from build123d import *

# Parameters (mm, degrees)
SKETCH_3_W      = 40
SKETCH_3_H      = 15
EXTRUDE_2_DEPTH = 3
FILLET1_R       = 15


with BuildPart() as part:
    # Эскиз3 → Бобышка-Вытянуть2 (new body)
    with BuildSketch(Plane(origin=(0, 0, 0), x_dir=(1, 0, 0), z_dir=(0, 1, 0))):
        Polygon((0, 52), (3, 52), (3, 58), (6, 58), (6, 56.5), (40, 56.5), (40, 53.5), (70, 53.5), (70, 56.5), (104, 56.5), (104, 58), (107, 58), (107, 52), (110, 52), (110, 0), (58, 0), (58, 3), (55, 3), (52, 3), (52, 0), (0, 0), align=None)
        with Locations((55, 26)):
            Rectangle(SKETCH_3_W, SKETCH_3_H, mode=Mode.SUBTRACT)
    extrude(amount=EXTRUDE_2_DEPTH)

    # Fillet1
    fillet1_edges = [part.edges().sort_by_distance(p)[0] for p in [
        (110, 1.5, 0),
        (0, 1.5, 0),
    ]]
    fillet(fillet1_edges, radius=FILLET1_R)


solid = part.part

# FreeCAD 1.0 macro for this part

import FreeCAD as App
import Part
import Sketcher

V = App.Vector


def edges_at(feature, points):
    """Names of the edges that pass closest to the given points."""
    edges = feature.Shape.Edges
    near = lambda p: min(range(len(edges)), key=lambda i: edges[i].distToShape(Part.Vertex(*p))[0])
    return sorted({f"Edge{near(p) + 1}" for p in points})

doc = App.newDocument("Part")
body = doc.addObject("PartDesign::Body", "Body")

# Sketch on XZ plane
sketch1 = doc.addObject("Sketcher::SketchObject", "Sketch")
body.addObject(sketch1)
sketch1.AttachmentSupport = (doc.XZ_Plane, [""])
sketch1.MapMode = "FlatFace"
sketch1.addGeometry(Part.LineSegment(V(3, -52, 0), V(0, -52, 0)), False)
sketch1.addGeometry(Part.LineSegment(V(0, -52, 0), V(0, 0, 0)), False)
sketch1.addGeometry(Part.LineSegment(V(0, 0, 0), V(52, 0, 0)), False)
sketch1.addGeometry(Part.LineSegment(V(52, 0, 0), V(52, -3, 0)), False)
sketch1.addGeometry(Part.LineSegment(V(52, -3, 0), V(58, -3, 0)), False)
sketch1.addGeometry(Part.LineSegment(V(58, -3, 0), V(58, 0, 0)), False)
sketch1.addGeometry(Part.LineSegment(V(58, 0, 0), V(110, 0, 0)), False)
sketch1.addGeometry(Part.LineSegment(V(110, 0, 0), V(110, -52, 0)), False)
sketch1.addGeometry(Part.LineSegment(V(110, -52, 0), V(107, -52, 0)), False)
sketch1.addGeometry(Part.LineSegment(V(107, -52, 0), V(107, -58, 0)), False)
sketch1.addGeometry(Part.LineSegment(V(107, -58, 0), V(104, -58, 0)), False)
sketch1.addGeometry(Part.LineSegment(V(104, -58, 0), V(104, -56.5, 0)), False)
sketch1.addGeometry(Part.LineSegment(V(104, -56.5, 0), V(70, -56.5, 0)), False)
sketch1.addGeometry(Part.LineSegment(V(70, -56.5, 0), V(70, -53.5, 0)), False)
sketch1.addGeometry(Part.LineSegment(V(70, -53.5, 0), V(40, -53.5, 0)), False)
sketch1.addGeometry(Part.LineSegment(V(40, -53.5, 0), V(40, -56.5, 0)), False)
sketch1.addGeometry(Part.LineSegment(V(40, -56.5, 0), V(6, -56.5, 0)), False)
sketch1.addGeometry(Part.LineSegment(V(6, -56.5, 0), V(6, -58, 0)), False)
sketch1.addGeometry(Part.LineSegment(V(6, -58, 0), V(3, -58, 0)), False)
sketch1.addGeometry(Part.LineSegment(V(3, -58, 0), V(3, -52, 0)), False)
sketch1.addGeometry(Part.LineSegment(V(35, -18.5, 0), V(35, -33.5, 0)), False)
sketch1.addGeometry(Part.LineSegment(V(35, -33.5, 0), V(75, -33.5, 0)), False)
sketch1.addGeometry(Part.LineSegment(V(75, -33.5, 0), V(75, -18.5, 0)), False)
sketch1.addGeometry(Part.LineSegment(V(75, -18.5, 0), V(35, -18.5, 0)), False)
sketch1.addConstraint(Sketcher.Constraint("Coincident", 0, 2, 1, 1))
sketch1.addConstraint(Sketcher.Constraint("Coincident", 1, 2, 2, 1))
sketch1.addConstraint(Sketcher.Constraint("Coincident", 2, 2, 3, 1))
sketch1.addConstraint(Sketcher.Constraint("Coincident", 3, 2, 4, 1))
sketch1.addConstraint(Sketcher.Constraint("Coincident", 4, 2, 5, 1))
sketch1.addConstraint(Sketcher.Constraint("Coincident", 5, 2, 6, 1))
sketch1.addConstraint(Sketcher.Constraint("Coincident", 6, 2, 7, 1))
sketch1.addConstraint(Sketcher.Constraint("Coincident", 7, 2, 8, 1))
sketch1.addConstraint(Sketcher.Constraint("Coincident", 8, 2, 9, 1))
sketch1.addConstraint(Sketcher.Constraint("Coincident", 9, 2, 10, 1))
sketch1.addConstraint(Sketcher.Constraint("Coincident", 10, 2, 11, 1))
sketch1.addConstraint(Sketcher.Constraint("Coincident", 11, 2, 12, 1))
sketch1.addConstraint(Sketcher.Constraint("Coincident", 12, 2, 13, 1))
sketch1.addConstraint(Sketcher.Constraint("Coincident", 13, 2, 14, 1))
sketch1.addConstraint(Sketcher.Constraint("Coincident", 14, 2, 15, 1))
sketch1.addConstraint(Sketcher.Constraint("Coincident", 15, 2, 16, 1))
sketch1.addConstraint(Sketcher.Constraint("Coincident", 16, 2, 17, 1))
sketch1.addConstraint(Sketcher.Constraint("Coincident", 17, 2, 18, 1))
sketch1.addConstraint(Sketcher.Constraint("Coincident", 18, 2, 19, 1))
sketch1.addConstraint(Sketcher.Constraint("Coincident", 19, 2, 0, 1))
sketch1.addConstraint(Sketcher.Constraint("Coincident", 20, 2, 21, 1))
sketch1.addConstraint(Sketcher.Constraint("Coincident", 21, 2, 22, 1))
sketch1.addConstraint(Sketcher.Constraint("Coincident", 22, 2, 23, 1))
sketch1.addConstraint(Sketcher.Constraint("Coincident", 23, 2, 20, 1))
sketch1.addConstraint(Sketcher.Constraint("Horizontal", 0))
sketch1.addConstraint(Sketcher.Constraint("Vertical", 1))
sketch1.addConstraint(Sketcher.Constraint("Horizontal", 2))
sketch1.addConstraint(Sketcher.Constraint("Vertical", 3))
sketch1.addConstraint(Sketcher.Constraint("Horizontal", 4))
sketch1.addConstraint(Sketcher.Constraint("Vertical", 5))
sketch1.addConstraint(Sketcher.Constraint("Horizontal", 6))
sketch1.addConstraint(Sketcher.Constraint("Vertical", 7))
sketch1.addConstraint(Sketcher.Constraint("Horizontal", 8))
sketch1.addConstraint(Sketcher.Constraint("Vertical", 9))
sketch1.addConstraint(Sketcher.Constraint("Horizontal", 10))
sketch1.addConstraint(Sketcher.Constraint("Vertical", 11))
sketch1.addConstraint(Sketcher.Constraint("Horizontal", 12))
sketch1.addConstraint(Sketcher.Constraint("Vertical", 13))
sketch1.addConstraint(Sketcher.Constraint("Horizontal", 14))
sketch1.addConstraint(Sketcher.Constraint("Vertical", 15))
sketch1.addConstraint(Sketcher.Constraint("Horizontal", 16))
sketch1.addConstraint(Sketcher.Constraint("Vertical", 17))
sketch1.addConstraint(Sketcher.Constraint("Horizontal", 18))
sketch1.addConstraint(Sketcher.Constraint("Vertical", 19))
sketch1.addConstraint(Sketcher.Constraint("Vertical", 20))
sketch1.addConstraint(Sketcher.Constraint("Horizontal", 21))
sketch1.addConstraint(Sketcher.Constraint("Vertical", 22))
sketch1.addConstraint(Sketcher.Constraint("Horizontal", 23))
sketch1.addConstraint(Sketcher.Constraint("Coincident", 1, 2, -1, 1))
sketch1.addConstraint(Sketcher.Constraint("PointOnObject", 5, 2, -1))
sketch1.addConstraint(Sketcher.Constraint("Horizontal", 0, 2, 7, 2))
sketch1.addConstraint(Sketcher.Constraint("Horizontal", 12, 2, 15, 2))
sketch1.addConstraint(Sketcher.Constraint("Horizontal", 10, 2, 17, 2))
sketch1.addConstraint(Sketcher.Constraint("Equal", 2, 6))
sketch1.addConstraint(Sketcher.Constraint("Equal", 0, 8))
sketch1.addConstraint(Sketcher.Constraint("Equal", 8, 10))
sketch1.addConstraint(Sketcher.Constraint("Equal", 12, 16))
sketch1.addConstraint(Sketcher.Constraint("Equal", 10, 18))
sketch1.addConstraint(Sketcher.Constraint("Equal", 6, 1))
sketch1.addConstraint(Sketcher.Constraint("Equal", 18, 3))
sketch1.addConstraint(Sketcher.Constraint("Equal", 4, 9))
sketch1.addConstraint(Sketcher.Constraint("Equal", 5, 13))
sketch1.addConstraint(Sketcher.Constraint("DistanceX", 0, 2, 0, 1, 3.0))
sketch1.addConstraint(Sketcher.Constraint("DistanceX", 2, 1, 2, 2, 52.0))
sketch1.addConstraint(Sketcher.Constraint("DistanceX", 4, 1, 4, 2, 6.0))
sketch1.addConstraint(Sketcher.Constraint("DistanceX", 12, 2, 12, 1, 34.0))
sketch1.addConstraint(Sketcher.Constraint("DistanceX", 21, 1, 21, 2, 40.0))
sketch1.addConstraint(Sketcher.Constraint("DistanceY", 20, 2, 20, 1, 15.0))
sketch1.addConstraint(Sketcher.Constraint("DistanceY", 11, 1, 11, 2, 1.5))
sketch1.addConstraint(Sketcher.Constraint("DistanceX", -1, 1, 20, 2, 35.0))
sketch1.addConstraint(Sketcher.Constraint("DistanceY", 14, 2, 20, 2, 20.0))
pad1 = doc.addObject("PartDesign::Pad", "Pad")
body.addObject(pad1)
pad1.Profile = sketch1
pad1.Length = 3
pad1.Reversed = True
doc.recompute()

fillet = doc.addObject("PartDesign::Fillet", "Fillet")
body.addObject(fillet)
fillet.Base = (pad1, edges_at(pad1, [(110, 1.5, 0), (0, 1.5, 0)]))
fillet.Radius = 15

doc.recompute()
